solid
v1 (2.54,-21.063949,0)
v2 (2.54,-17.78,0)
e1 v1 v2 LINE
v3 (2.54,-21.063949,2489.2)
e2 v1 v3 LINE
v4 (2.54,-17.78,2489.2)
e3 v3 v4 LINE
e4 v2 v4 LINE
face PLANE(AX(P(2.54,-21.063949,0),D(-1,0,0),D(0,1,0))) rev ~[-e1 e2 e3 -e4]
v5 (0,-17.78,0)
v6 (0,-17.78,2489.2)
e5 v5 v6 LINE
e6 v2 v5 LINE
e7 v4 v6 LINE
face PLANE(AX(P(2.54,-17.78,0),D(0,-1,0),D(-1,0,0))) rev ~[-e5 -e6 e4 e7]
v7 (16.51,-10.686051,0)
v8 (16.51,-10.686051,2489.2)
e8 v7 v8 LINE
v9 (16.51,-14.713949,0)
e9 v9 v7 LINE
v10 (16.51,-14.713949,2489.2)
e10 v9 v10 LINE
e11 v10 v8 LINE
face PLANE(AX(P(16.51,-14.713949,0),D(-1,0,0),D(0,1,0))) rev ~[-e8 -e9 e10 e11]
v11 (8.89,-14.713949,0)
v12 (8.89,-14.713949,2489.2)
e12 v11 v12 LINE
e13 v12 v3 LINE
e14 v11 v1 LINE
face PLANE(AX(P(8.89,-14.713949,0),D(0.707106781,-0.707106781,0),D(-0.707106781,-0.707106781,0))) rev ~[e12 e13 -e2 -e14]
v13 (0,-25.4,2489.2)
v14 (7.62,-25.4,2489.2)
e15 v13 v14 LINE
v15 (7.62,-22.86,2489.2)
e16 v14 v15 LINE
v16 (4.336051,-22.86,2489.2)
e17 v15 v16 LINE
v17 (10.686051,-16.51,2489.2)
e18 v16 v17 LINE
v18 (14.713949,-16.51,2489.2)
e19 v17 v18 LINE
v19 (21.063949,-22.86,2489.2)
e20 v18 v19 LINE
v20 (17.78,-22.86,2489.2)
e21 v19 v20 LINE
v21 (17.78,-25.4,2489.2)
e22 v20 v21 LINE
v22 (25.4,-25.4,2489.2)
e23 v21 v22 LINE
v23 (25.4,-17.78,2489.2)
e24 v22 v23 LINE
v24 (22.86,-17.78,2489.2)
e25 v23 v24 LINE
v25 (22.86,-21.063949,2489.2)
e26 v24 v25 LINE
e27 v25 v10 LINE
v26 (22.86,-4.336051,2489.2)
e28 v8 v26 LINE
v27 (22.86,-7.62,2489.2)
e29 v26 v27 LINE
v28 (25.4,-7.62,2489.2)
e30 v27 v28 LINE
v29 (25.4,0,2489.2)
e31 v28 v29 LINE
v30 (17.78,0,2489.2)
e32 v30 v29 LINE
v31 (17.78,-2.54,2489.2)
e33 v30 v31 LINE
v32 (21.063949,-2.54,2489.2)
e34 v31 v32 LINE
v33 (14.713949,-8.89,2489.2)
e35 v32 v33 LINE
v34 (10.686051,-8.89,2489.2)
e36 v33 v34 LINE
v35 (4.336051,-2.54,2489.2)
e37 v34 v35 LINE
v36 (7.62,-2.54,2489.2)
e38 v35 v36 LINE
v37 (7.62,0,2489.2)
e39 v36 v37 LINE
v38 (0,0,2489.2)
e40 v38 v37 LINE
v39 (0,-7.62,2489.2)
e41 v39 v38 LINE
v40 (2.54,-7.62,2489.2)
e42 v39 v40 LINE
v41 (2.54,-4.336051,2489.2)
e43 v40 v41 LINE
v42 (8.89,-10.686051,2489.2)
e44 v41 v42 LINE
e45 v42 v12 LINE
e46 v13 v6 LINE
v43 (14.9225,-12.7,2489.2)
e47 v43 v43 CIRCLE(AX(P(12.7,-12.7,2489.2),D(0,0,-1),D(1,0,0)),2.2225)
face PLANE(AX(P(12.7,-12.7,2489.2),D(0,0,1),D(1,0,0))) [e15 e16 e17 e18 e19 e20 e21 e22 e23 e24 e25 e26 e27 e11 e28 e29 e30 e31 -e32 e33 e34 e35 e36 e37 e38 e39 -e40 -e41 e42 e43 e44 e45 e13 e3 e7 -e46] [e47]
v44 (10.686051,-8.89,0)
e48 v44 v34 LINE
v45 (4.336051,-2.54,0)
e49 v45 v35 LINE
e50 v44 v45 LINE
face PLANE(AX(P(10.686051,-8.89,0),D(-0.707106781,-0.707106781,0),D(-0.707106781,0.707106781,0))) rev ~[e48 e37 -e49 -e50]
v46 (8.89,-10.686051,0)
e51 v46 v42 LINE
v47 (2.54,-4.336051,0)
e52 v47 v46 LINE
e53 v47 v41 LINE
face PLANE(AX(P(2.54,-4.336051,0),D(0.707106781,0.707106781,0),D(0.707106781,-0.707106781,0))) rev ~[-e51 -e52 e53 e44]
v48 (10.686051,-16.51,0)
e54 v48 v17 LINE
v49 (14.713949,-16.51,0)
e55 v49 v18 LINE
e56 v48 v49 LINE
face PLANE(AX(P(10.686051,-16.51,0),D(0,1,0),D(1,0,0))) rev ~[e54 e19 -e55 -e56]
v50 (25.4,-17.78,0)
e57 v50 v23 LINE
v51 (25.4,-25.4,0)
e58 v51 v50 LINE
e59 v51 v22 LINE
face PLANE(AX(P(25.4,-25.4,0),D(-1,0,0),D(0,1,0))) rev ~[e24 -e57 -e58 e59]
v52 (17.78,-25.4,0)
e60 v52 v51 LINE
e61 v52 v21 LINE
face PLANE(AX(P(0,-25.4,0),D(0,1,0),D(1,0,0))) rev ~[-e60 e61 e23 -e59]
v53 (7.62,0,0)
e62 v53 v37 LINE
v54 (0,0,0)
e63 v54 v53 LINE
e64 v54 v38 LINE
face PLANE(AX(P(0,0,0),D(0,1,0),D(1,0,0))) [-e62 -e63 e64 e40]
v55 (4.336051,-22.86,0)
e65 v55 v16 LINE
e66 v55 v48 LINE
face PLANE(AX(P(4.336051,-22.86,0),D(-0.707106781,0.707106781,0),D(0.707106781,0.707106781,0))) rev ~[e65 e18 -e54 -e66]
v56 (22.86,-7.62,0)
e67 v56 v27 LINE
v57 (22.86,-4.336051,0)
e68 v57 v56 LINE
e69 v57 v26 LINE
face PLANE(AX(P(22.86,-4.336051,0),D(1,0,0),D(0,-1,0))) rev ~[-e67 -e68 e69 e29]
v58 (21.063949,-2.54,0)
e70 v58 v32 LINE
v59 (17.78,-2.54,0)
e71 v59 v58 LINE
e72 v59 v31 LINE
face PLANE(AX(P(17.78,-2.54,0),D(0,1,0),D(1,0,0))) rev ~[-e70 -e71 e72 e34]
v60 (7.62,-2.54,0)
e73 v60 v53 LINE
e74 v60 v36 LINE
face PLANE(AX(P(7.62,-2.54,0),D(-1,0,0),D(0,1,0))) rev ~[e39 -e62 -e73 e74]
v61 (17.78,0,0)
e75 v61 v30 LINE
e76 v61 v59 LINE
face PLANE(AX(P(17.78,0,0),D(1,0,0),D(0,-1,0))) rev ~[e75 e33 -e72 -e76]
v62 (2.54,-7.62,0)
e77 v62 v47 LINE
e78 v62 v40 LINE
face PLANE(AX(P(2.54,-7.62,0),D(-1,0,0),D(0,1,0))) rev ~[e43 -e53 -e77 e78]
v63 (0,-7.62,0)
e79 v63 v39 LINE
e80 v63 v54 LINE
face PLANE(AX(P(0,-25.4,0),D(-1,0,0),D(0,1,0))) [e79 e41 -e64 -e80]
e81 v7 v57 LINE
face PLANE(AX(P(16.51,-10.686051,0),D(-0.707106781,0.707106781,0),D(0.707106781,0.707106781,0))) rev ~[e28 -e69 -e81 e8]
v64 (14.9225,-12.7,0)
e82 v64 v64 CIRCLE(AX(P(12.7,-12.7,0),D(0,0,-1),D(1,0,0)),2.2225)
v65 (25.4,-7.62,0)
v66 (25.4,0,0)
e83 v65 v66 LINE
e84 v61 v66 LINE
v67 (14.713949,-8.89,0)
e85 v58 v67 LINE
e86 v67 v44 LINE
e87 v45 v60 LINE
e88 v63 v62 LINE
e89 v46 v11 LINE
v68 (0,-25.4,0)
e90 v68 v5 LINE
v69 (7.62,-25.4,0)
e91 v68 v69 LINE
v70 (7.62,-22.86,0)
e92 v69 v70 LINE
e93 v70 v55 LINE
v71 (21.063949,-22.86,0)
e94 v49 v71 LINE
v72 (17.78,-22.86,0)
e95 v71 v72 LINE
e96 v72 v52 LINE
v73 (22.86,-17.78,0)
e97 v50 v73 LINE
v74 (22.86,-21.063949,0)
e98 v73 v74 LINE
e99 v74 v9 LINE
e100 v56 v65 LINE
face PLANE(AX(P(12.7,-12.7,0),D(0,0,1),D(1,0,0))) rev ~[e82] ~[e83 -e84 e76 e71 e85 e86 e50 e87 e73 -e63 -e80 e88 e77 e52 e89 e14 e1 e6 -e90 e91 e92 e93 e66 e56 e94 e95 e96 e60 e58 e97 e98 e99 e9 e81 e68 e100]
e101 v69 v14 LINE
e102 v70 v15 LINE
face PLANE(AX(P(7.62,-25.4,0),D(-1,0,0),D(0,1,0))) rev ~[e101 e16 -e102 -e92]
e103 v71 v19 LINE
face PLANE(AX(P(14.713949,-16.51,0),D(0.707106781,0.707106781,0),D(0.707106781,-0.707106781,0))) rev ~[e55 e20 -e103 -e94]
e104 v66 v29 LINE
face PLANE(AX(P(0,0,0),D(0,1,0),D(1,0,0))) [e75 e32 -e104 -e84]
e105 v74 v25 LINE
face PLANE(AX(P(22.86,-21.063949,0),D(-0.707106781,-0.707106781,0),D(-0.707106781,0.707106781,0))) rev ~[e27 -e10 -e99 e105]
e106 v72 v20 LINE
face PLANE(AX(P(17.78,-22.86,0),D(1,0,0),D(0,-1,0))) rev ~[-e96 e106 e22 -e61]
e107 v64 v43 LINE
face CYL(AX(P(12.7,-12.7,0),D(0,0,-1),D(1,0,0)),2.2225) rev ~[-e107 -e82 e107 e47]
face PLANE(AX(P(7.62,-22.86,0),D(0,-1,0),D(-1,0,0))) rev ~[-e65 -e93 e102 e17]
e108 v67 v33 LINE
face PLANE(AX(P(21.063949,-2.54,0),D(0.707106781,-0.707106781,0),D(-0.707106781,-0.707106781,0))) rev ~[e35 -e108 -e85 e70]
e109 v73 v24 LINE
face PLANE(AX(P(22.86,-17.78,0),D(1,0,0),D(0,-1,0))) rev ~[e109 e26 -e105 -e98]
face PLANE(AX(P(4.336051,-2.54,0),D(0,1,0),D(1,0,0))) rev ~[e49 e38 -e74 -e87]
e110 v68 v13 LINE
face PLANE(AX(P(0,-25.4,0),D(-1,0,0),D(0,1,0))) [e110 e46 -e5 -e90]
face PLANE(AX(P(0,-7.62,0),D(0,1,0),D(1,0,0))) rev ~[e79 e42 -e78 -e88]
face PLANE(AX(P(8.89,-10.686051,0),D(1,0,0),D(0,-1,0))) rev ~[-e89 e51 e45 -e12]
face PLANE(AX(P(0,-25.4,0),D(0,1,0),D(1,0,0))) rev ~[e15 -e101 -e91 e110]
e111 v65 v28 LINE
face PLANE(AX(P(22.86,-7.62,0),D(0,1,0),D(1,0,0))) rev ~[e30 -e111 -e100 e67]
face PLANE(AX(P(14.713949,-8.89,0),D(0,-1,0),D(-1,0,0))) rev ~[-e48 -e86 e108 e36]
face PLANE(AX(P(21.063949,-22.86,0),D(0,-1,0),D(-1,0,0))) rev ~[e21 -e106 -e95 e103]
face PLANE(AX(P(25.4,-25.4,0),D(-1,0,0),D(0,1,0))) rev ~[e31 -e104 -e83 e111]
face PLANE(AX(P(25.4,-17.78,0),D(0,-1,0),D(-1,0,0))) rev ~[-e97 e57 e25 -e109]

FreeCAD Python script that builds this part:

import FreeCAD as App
import Part
import Sketcher

V = App.Vector
Q = App.Units.Quantity

doc = App.newDocument("Part")
body = doc.addObject("PartDesign::Body", "Body")

sketch1 = body.newObject("Sketcher::SketchObject", "Sketch")
sketch1.AttachmentSupport = (doc.getObject("XY_Plane"), [""])
sketch1.MapMode = "FlatFace"
sketch1.addGeometry([
    Part.LineSegment(V(0, 0, 0), V(0, -25.4, 0)),
    Part.LineSegment(V(0, -25.4, 0), V(25.4, -25.4, 0)),
    Part.LineSegment(V(25.4, -25.4, 0), V(25.4, 0, 0)),
    Part.LineSegment(V(25.4, 0, 0), V(0, 0, 0)),
], False)
sketch1.addConstraint([
    Sketcher.Constraint("Coincident", 0, 2, 1, 1),
    Sketcher.Constraint("Coincident", 1, 2, 2, 1),
    Sketcher.Constraint("Coincident", 2, 2, 3, 1),
    Sketcher.Constraint("Coincident", 3, 2, 0, 1),
    Sketcher.Constraint("Vertical", 0),
    Sketcher.Constraint("Horizontal", 1),
    Sketcher.Constraint("Vertical", 2),
    Sketcher.Constraint("Horizontal", 3),
    Sketcher.Constraint("Coincident", 3, 2, -1, 1),
    Sketcher.Constraint("Equal", 3, 0),
    Sketcher.Constraint("DistanceX", 1, 1, 1, 2, Q("1 in")),
])
pad1 = body.newObject("PartDesign::Pad", "Pad")
pad1.Profile = sketch1
pad1.Length = Q("98 in")

sketch2 = body.newObject("Sketcher::SketchObject", "Sketch001")
sketch2.AttachmentSupport = (doc.getObject("XY_Plane"), [""])
sketch2.MapMode = "FlatFace"
sketch2.addGeometry([
    Part.LineSegment(V(2.54, -17.78, 0), V(0, -17.78, 0)),
    Part.LineSegment(V(0, -17.78, 0), V(0, -7.62, 0)),
    Part.LineSegment(V(0, -7.62, 0), V(2.54, -7.62, 0)),
    Part.LineSegment(V(2.54, -7.62, 0), V(2.54, -4.336051, 0)),
    Part.LineSegment(V(2.54, -4.336051, 0), V(8.89, -10.686051, 0)),
    Part.LineSegment(V(8.89, -10.686051, 0), V(8.89, -14.713949, 0)),
    Part.LineSegment(V(8.89, -14.713949, 0), V(2.54, -21.063949, 0)),
    Part.LineSegment(V(2.54, -21.063949, 0), V(2.54, -17.78, 0)),
    Part.LineSegment(V(7.62, -2.54, 0), V(7.62, 0, 0)),
    Part.LineSegment(V(7.62, 0, 0), V(17.78, 0, 0)),
    Part.LineSegment(V(17.78, 0, 0), V(17.78, -2.54, 0)),
    Part.LineSegment(V(17.78, -2.54, 0), V(21.063949, -2.54, 0)),
    Part.LineSegment(V(21.063949, -2.54, 0), V(14.713949, -8.89, 0)),
    Part.LineSegment(V(14.713949, -8.89, 0), V(10.686051, -8.89, 0)),
    Part.LineSegment(V(10.686051, -8.89, 0), V(4.336051, -2.54, 0)),
    Part.LineSegment(V(4.336051, -2.54, 0), V(7.62, -2.54, 0)),
    Part.LineSegment(V(25.4, -7.62, 0), V(25.4, -17.78, 0)),
    Part.LineSegment(V(25.4, -17.78, 0), V(22.86, -17.78, 0)),
    Part.LineSegment(V(22.86, -17.78, 0), V(22.86, -21.063949, 0)),
    Part.LineSegment(V(22.86, -21.063949, 0), V(16.51, -14.713949, 0)),
    Part.LineSegment(V(16.51, -14.713949, 0), V(16.51, -10.686051, 0)),
    Part.LineSegment(V(16.51, -10.686051, 0), V(22.86, -4.336051, 0)),
    Part.LineSegment(V(22.86, -4.336051, 0), V(22.86, -7.62, 0)),
    Part.LineSegment(V(22.86, -7.62, 0), V(25.4, -7.62, 0)),
    Part.LineSegment(V(17.78, -25.4, 0), V(7.62, -25.4, 0)),
    Part.LineSegment(V(7.62, -25.4, 0), V(7.62, -22.86, 0)),
    Part.LineSegment(V(7.62, -22.86, 0), V(4.336051, -22.86, 0)),
    Part.LineSegment(V(4.336051, -22.86, 0), V(10.686051, -16.51, 0)),
    Part.LineSegment(V(10.686051, -16.51, 0), V(14.713949, -16.51, 0)),
    Part.LineSegment(V(14.713949, -16.51, 0), V(21.063949, -22.86, 0)),
    Part.LineSegment(V(21.063949, -22.86, 0), V(17.78, -22.86, 0)),
    Part.LineSegment(V(17.78, -22.86, 0), V(17.78, -25.4, 0)),
], False)
sketch2.addConstraint([
    Sketcher.Constraint("Coincident", 0, 2, 1, 1),
    Sketcher.Constraint("Coincident", 1, 2, 2, 1),
    Sketcher.Constraint("Coincident", 2, 2, 3, 1),
    Sketcher.Constraint("Coincident", 3, 2, 4, 1),
    Sketcher.Constraint("Coincident", 4, 2, 5, 1),
    Sketcher.Constraint("Coincident", 5, 2, 6, 1),
    Sketcher.Constraint("Coincident", 6, 2, 7, 1),
    Sketcher.Constraint("Coincident", 7, 2, 0, 1),
    Sketcher.Constraint("Coincident", 8, 2, 9, 1),
    Sketcher.Constraint("Coincident", 9, 2, 10, 1),
    Sketcher.Constraint("Coincident", 10, 2, 11, 1),
    Sketcher.Constraint("Coincident", 11, 2, 12, 1),
    Sketcher.Constraint("Coincident", 12, 2, 13, 1),
    Sketcher.Constraint("Coincident", 13, 2, 14, 1),
    Sketcher.Constraint("Coincident", 14, 2, 15, 1),
    Sketcher.Constraint("Coincident", 15, 2, 8, 1),
    Sketcher.Constraint("Coincident", 16, 2, 17, 1),
    Sketcher.Constraint("Coincident", 17, 2, 18, 1),
    Sketcher.Constraint("Coincident", 18, 2, 19, 1),
    Sketcher.Constraint("Coincident", 19, 2, 20, 1),
    Sketcher.Constraint("Coincident", 20, 2, 21, 1),
    Sketcher.Constraint("Coincident", 21, 2, 22, 1),
    Sketcher.Constraint("Coincident", 22, 2, 23, 1),
    Sketcher.Constraint("Coincident", 23, 2, 16, 1),
    Sketcher.Constraint("Coincident", 24, 2, 25, 1),
    Sketcher.Constraint("Coincident", 25, 2, 26, 1),
    Sketcher.Constraint("Coincident", 26, 2, 27, 1),
    Sketcher.Constraint("Coincident", 27, 2, 28, 1),
    Sketcher.Constraint("Coincident", 28, 2, 29, 1),
    Sketcher.Constraint("Coincident", 29, 2, 30, 1),
    Sketcher.Constraint("Coincident", 30, 2, 31, 1),
    Sketcher.Constraint("Coincident", 31, 2, 24, 1),
    Sketcher.Constraint("Horizontal", 0),
    Sketcher.Constraint("Vertical", 1),
    Sketcher.Constraint("Horizontal", 2),
    Sketcher.Constraint("Vertical", 3),
    Sketcher.Constraint("Vertical", 5),
    Sketcher.Constraint("Vertical", 7),
    Sketcher.Constraint("Vertical", 8),
    Sketcher.Constraint("Horizontal", 9),
    Sketcher.Constraint("Vertical", 10),
    Sketcher.Constraint("Horizontal", 11),
    Sketcher.Constraint("Horizontal", 13),
    Sketcher.Constraint("Horizontal", 15),
    Sketcher.Constraint("Vertical", 16),
    Sketcher.Constraint("Horizontal", 17),
    Sketcher.Constraint("Vertical", 18),
    Sketcher.Constraint("Vertical", 20),
    Sketcher.Constraint("Vertical", 22),
    Sketcher.Constraint("Horizontal", 23),
    Sketcher.Constraint("Horizontal", 24),
    Sketcher.Constraint("Vertical", 25),
    Sketcher.Constraint("Horizontal", 26),
    Sketcher.Constraint("Horizontal", 28),
    Sketcher.Constraint("Horizontal", 30),
    Sketcher.Constraint("Vertical", 31),
    Sketcher.Constraint("PointOnObject", 0, 2, -2),
    Sketcher.Constraint("PointOnObject", 8, 2, -1),
    Sketcher.Constraint("Perpendicular", 4, 6),
    Sketcher.Constraint("Parallel", 6, 12),
    Sketcher.Constraint("Perpendicular", 12, 14),
    Sketcher.Constraint("Parallel", 14, 19),
    Sketcher.Constraint("Perpendicular", 19, 21),
    Sketcher.Constraint("Parallel", 21, 27),
    Sketcher.Constraint("Perpendicular", 27, 29),
    Sketcher.Constraint("Horizontal", 11, 2, 14, 2),
    Sketcher.Constraint("Horizontal", 7, 2, 16, 2),
    Sketcher.Constraint("Horizontal", 6, 2, 18, 2),
    Sketcher.Constraint("Horizontal", 5, 2, 19, 2),
    Sketcher.Constraint("Horizontal", 4, 2, 20, 2),
    Sketcher.Constraint("Horizontal", 3, 2, 21, 2),
    Sketcher.Constraint("Horizontal", 2, 2, 22, 2),
    Sketcher.Constraint("Horizontal", 26, 2, 29, 2),
    Sketcher.Constraint("Vertical", 3, 2, 6, 2),
    Sketcher.Constraint("Vertical", 18, 2, 21, 2),
    Sketcher.Constraint("Vertical", 15, 2, 24, 2),
    Sketcher.Constraint("Vertical", 14, 2, 26, 2),
    Sketcher.Constraint("Vertical", 13, 2, 27, 2),
    Sketcher.Constraint("Vertical", 12, 2, 28, 2),
    Sketcher.Constraint("Vertical", 10, 2, 30, 2),
    Sketcher.Constraint("Equal", 11, 15),
    Sketcher.Constraint("Equal", 2, 17),
    Sketcher.Constraint("Equal", 24, 1),
    Sketcher.Constraint("Equal", 30, 3),
    Sketcher.Constraint("Equal", 28, 5),
    Sketcher.Constraint("Equal", 3, 7),
    Sketcher.Constraint("Equal", 23, 8),
    Sketcher.Constraint("Equal", 10, 25),
    Sketcher.Constraint("DistanceX", 0, 2, 0, 1, Q("0.1 in")),
    Sketcher.Constraint("DistanceX", 9, 1, 9, 2, Q("0.4 in")),
    Sketcher.Constraint("DistanceX", -1, 1, 16, 2, Q("1 in")),
    Sketcher.Constraint("DistanceY", 24, 2, -1, 1, Q("1 in")),
    Sketcher.Constraint("DistanceY", 0, 2, -1, 1, Q("0.7 in")),
    Sketcher.Constraint("DistanceX", -1, 1, 8, 2, Q("0.3 in")),
    Sketcher.Constraint("DistanceX", 5, 2, 19, 2, Q("0.3 in")),
    Sketcher.Constraint("DistanceX", 11, 1, 11, 2, 3.283949),
])
pocket1 = body.newObject("PartDesign::Pocket", "Pocket")
pocket1.Profile = sketch2
pocket1.Length = Q("98 in")
pocket1.Reversed = True

sketch3 = body.newObject("Sketcher::SketchObject", "Sketch002")
sketch3.AttachmentSupport = (doc.getObject("XY_Plane"), [""])
sketch3.MapMode = "FlatFace"
sketch3.addGeometry(Part.Circle(V(12.7, -12.7, 0), V(0, 0, 1), 2.2225), False)
sketch3.addConstraint([
    Sketcher.Constraint("Diameter", 0, Q("0.175 in")),
    Sketcher.Constraint("DistanceX", -1, 1, 0, 3, Q("0.5 in")),
    Sketcher.Constraint("DistanceY", 0, 3, -1, 1, Q("0.5 in")),
])
pocket2 = body.newObject("PartDesign::Pocket", "Pocket001")
pocket2.Profile = sketch3
pocket2.Length = Q("98 in")
pocket2.Reversed = True

doc.recompute()
